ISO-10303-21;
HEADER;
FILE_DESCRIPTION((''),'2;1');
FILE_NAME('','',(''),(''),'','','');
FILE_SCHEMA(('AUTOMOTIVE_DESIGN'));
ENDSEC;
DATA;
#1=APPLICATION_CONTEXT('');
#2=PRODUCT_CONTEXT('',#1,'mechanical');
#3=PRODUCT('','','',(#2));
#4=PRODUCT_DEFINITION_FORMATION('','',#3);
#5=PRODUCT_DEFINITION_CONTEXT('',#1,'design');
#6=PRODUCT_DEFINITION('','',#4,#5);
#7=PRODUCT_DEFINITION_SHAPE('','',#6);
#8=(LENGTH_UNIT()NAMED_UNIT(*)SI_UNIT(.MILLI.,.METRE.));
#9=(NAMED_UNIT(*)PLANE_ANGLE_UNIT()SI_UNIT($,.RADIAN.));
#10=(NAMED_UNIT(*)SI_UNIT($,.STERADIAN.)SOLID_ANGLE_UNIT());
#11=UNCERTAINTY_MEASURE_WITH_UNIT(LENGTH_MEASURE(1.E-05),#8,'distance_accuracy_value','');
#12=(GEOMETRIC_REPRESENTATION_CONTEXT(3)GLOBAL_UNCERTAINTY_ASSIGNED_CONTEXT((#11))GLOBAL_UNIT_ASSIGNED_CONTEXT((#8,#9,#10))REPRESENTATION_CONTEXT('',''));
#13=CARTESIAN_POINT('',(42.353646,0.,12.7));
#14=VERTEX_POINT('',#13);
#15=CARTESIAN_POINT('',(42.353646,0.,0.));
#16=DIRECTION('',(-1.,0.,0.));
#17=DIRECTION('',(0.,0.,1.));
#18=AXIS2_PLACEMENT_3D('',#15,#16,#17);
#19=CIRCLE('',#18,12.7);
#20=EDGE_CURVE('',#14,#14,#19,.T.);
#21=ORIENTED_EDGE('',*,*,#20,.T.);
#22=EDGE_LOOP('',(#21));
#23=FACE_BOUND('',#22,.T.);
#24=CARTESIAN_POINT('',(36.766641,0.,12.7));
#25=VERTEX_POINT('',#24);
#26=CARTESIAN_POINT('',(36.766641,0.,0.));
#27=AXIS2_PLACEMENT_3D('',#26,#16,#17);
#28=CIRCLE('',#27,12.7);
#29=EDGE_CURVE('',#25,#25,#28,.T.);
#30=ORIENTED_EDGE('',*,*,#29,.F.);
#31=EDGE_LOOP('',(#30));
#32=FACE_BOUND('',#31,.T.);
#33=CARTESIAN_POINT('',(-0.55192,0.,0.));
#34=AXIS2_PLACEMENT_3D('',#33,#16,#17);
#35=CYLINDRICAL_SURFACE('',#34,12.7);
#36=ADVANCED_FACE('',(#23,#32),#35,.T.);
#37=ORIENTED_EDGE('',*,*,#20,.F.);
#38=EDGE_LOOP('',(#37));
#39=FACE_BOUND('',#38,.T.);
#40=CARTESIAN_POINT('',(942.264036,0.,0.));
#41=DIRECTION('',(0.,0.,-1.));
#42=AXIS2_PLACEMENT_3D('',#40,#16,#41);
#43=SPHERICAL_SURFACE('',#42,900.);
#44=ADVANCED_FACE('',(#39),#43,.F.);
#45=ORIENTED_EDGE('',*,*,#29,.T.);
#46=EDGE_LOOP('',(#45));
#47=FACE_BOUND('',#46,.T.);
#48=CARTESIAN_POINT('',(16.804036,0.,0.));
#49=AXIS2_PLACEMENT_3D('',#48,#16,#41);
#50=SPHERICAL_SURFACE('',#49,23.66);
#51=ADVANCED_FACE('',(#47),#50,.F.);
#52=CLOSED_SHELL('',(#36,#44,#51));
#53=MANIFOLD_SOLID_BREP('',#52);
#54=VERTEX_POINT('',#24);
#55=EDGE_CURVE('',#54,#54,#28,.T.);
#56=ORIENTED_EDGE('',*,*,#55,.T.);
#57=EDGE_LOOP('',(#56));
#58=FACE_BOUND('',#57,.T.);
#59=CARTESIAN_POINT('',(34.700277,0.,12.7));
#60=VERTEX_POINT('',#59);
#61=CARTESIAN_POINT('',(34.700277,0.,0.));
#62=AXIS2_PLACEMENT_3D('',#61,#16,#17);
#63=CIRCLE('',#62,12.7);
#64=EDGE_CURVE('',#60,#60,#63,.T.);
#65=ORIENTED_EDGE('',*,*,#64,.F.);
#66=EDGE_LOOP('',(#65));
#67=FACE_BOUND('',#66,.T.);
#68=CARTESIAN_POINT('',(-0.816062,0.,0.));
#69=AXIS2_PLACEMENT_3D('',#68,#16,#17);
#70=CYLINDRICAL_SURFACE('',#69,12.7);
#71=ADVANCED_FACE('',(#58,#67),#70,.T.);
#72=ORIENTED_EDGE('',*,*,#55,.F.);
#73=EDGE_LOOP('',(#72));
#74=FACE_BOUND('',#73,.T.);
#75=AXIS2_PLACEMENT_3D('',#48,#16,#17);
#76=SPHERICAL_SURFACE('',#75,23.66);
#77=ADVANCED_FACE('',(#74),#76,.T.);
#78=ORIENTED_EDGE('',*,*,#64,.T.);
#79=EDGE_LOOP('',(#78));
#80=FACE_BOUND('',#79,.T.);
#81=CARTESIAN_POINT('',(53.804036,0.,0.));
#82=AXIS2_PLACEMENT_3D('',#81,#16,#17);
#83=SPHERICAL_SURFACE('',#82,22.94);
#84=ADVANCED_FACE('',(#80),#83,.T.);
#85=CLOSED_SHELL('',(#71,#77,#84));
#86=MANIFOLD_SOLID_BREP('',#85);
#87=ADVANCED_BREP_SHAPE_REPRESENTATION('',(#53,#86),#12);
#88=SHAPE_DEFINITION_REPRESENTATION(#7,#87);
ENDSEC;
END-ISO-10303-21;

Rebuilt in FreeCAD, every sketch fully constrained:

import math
import FreeCAD as App
import Part
import Sketcher
from FreeCAD import Vector
Q = App.Units.Quantity

doc = App.newDocument("Part")
params = doc.addObject("Spreadsheet::Sheet", "Params")
for row, (alias, value) in enumerate([
    ("sketch1_radius", "22.94 mm"),
    ("sketch1_radius2", "23.66 mm"),
    ("sketch1_width", "9.6 mm"),
    ("revolution_angle", "360 deg"),
    ("sketch2_radius", "23.66 mm"),
    ("sketch2_width", "1.8 mm"),
    ("revolution2_angle", "360 deg"),
], start=1):
    params.set(f"A{row}", alias)
    params.set(f"B{row}", "=" + value)
    params.setAlias(f"B{row}", alias)

body = doc.addObject("PartDesign::Body", "Body")

# Sketch on XZ plane
sketch1 = doc.addObject("Sketcher::SketchObject", "Sketch")
body.addObject(sketch1)
sketch1.AttachmentSupport = (doc.XZ_Plane, [""])
sketch1.MapMode = "FlatFace"
sketch1.addGeometry(Part.ArcOfCircle(Part.Circle(Vector(53.8, 0, 0), Vector(0, 0, 1), 22.9), math.radians(-180), math.radians(-146)), False)
sketch1.addGeometry(Part.LineSegment(Vector(30.9, 0, 0), Vector(40.5, 0, 0)), False)
sketch1.addGeometry(Part.ArcOfCircle(Part.Circle(Vector(16.8, 0, 0), Vector(0, 0, 1), 23.7), math.radians(-32), math.radians(0)), False)
sketch1.addGeometry(Part.LineSegment(Vector(36.8, -12.7, 0), Vector(34.7, -12.7, 0)), False)
sketch1.addConstraint(Sketcher.Constraint("Coincident", 0, 1, 1, 1))
sketch1.addConstraint(Sketcher.Constraint("Coincident", 1, 2, 2, 2))
sketch1.addConstraint(Sketcher.Constraint("Coincident", 2, 1, 3, 1))
sketch1.addConstraint(Sketcher.Constraint("Coincident", 3, 2, 0, 2))
sketch1.addConstraint(Sketcher.Constraint("Horizontal", 1))
sketch1.addConstraint(Sketcher.Constraint("Horizontal", 3))
sketch1.addConstraint(Sketcher.Constraint("PointOnObject", 0, 3, -1))
sketch1.addConstraint(Sketcher.Constraint("PointOnObject", 2, 3, -1))
sketch1.addConstraint(Sketcher.Constraint("PointOnObject", 0, 1, -1))
sketch1.addConstraint(Sketcher.Constraint("Radius", 0, Q("22.94 mm")))
sketch1.addConstraint(Sketcher.Constraint("Radius", 2, Q("23.66 mm")))
sketch1.addConstraint(Sketcher.Constraint("DistanceX", 1, 1, 1, 2, Q("9.6 mm")))
sketch1.addConstraint(Sketcher.Constraint("DistanceY", 2, 1, -1, 1, Q("12.7 mm")))
sketch1.addConstraint(Sketcher.Constraint("DistanceX", -1, 1, 2, 1, Q("36.766641 mm")))
sketch1.setExpression("Constraints[9]", "Params.sketch1_radius")
sketch1.setExpression("Constraints[10]", "Params.sketch1_radius2")
sketch1.setExpression("Constraints[11]", "Params.sketch1_width")
revolution = doc.addObject("PartDesign::Revolution", "Revolution")
body.addObject(revolution)
revolution.Profile = sketch1
revolution.ReferenceAxis = (sketch1, ["H_Axis"])
revolution.setExpression("Angle", "Params.revolution_angle")
body2 = doc.addObject("PartDesign::Body", "Body001")

# Sketch on XZ plane
sketch2 = doc.addObject("Sketcher::SketchObject", "Sketch001")
body2.addObject(sketch2)
sketch2.AttachmentSupport = (doc.getObject("XZ_Plane001"), [""])
sketch2.MapMode = "FlatFace"
sketch2.addGeometry(Part.LineSegment(Vector(42.4, -12.7, 0), Vector(36.8, -12.7, 0)), False)
sketch2.addGeometry(Part.ArcOfCircle(Part.Circle(Vector(16.8, 0, 0), Vector(0, 0, 1), 23.7), math.radians(-32), math.radians(0)), False)
sketch2.addGeometry(Part.LineSegment(Vector(40.5, 0, 0), Vector(42.3, 0, 0)), False)
sketch2.addGeometry(Part.ArcOfCircle(Part.Circle(Vector(942.3, 0, 0), Vector(0, 0, 1), 900), math.radians(180), math.radians(180.81)), False)
sketch2.addConstraint(Sketcher.Constraint("Coincident", 0, 2, 1, 1))
sketch2.addConstraint(Sketcher.Constraint("Coincident", 1, 2, 2, 1))
sketch2.addConstraint(Sketcher.Constraint("Coincident", 2, 2, 3, 1))
sketch2.addConstraint(Sketcher.Constraint("Coincident", 3, 2, 0, 1))
sketch2.addConstraint(Sketcher.Constraint("Horizontal", 0))
sketch2.addConstraint(Sketcher.Constraint("Horizontal", 2))
sketch2.addConstraint(Sketcher.Constraint("PointOnObject", 1, 3, -1))
sketch2.addConstraint(Sketcher.Constraint("PointOnObject", 3, 3, -1))
sketch2.addConstraint(Sketcher.Constraint("PointOnObject", 1, 2, -1))
sketch2.addConstraint(Sketcher.Constraint("Radius", 1, Q("23.66 mm")))
sketch2.addConstraint(Sketcher.Constraint("DistanceX", 2, 1, 2, 2, Q("1.8 mm")))
sketch2.addConstraint(Sketcher.Constraint("DistanceY", 0, 2, -1, 1, Q("12.7 mm")))
sketch2.addConstraint(Sketcher.Constraint("Radius", 3, Q("899.999993 mm")))
sketch2.addConstraint(Sketcher.Constraint("DistanceX", -1, 1, 3, 3, Q("942.26403 mm")))
sketch2.setExpression("Constraints[9]", "Params.sketch2_radius")
sketch2.setExpression("Constraints[10]", "Params.sketch2_width")
revolution2 = doc.addObject("PartDesign::Revolution", "Revolution001")
body2.addObject(revolution2)
revolution2.Profile = sketch2
revolution2.ReferenceAxis = (sketch2, ["H_Axis"])
revolution2.setExpression("Angle", "Params.revolution2_angle")

doc.recompute()
